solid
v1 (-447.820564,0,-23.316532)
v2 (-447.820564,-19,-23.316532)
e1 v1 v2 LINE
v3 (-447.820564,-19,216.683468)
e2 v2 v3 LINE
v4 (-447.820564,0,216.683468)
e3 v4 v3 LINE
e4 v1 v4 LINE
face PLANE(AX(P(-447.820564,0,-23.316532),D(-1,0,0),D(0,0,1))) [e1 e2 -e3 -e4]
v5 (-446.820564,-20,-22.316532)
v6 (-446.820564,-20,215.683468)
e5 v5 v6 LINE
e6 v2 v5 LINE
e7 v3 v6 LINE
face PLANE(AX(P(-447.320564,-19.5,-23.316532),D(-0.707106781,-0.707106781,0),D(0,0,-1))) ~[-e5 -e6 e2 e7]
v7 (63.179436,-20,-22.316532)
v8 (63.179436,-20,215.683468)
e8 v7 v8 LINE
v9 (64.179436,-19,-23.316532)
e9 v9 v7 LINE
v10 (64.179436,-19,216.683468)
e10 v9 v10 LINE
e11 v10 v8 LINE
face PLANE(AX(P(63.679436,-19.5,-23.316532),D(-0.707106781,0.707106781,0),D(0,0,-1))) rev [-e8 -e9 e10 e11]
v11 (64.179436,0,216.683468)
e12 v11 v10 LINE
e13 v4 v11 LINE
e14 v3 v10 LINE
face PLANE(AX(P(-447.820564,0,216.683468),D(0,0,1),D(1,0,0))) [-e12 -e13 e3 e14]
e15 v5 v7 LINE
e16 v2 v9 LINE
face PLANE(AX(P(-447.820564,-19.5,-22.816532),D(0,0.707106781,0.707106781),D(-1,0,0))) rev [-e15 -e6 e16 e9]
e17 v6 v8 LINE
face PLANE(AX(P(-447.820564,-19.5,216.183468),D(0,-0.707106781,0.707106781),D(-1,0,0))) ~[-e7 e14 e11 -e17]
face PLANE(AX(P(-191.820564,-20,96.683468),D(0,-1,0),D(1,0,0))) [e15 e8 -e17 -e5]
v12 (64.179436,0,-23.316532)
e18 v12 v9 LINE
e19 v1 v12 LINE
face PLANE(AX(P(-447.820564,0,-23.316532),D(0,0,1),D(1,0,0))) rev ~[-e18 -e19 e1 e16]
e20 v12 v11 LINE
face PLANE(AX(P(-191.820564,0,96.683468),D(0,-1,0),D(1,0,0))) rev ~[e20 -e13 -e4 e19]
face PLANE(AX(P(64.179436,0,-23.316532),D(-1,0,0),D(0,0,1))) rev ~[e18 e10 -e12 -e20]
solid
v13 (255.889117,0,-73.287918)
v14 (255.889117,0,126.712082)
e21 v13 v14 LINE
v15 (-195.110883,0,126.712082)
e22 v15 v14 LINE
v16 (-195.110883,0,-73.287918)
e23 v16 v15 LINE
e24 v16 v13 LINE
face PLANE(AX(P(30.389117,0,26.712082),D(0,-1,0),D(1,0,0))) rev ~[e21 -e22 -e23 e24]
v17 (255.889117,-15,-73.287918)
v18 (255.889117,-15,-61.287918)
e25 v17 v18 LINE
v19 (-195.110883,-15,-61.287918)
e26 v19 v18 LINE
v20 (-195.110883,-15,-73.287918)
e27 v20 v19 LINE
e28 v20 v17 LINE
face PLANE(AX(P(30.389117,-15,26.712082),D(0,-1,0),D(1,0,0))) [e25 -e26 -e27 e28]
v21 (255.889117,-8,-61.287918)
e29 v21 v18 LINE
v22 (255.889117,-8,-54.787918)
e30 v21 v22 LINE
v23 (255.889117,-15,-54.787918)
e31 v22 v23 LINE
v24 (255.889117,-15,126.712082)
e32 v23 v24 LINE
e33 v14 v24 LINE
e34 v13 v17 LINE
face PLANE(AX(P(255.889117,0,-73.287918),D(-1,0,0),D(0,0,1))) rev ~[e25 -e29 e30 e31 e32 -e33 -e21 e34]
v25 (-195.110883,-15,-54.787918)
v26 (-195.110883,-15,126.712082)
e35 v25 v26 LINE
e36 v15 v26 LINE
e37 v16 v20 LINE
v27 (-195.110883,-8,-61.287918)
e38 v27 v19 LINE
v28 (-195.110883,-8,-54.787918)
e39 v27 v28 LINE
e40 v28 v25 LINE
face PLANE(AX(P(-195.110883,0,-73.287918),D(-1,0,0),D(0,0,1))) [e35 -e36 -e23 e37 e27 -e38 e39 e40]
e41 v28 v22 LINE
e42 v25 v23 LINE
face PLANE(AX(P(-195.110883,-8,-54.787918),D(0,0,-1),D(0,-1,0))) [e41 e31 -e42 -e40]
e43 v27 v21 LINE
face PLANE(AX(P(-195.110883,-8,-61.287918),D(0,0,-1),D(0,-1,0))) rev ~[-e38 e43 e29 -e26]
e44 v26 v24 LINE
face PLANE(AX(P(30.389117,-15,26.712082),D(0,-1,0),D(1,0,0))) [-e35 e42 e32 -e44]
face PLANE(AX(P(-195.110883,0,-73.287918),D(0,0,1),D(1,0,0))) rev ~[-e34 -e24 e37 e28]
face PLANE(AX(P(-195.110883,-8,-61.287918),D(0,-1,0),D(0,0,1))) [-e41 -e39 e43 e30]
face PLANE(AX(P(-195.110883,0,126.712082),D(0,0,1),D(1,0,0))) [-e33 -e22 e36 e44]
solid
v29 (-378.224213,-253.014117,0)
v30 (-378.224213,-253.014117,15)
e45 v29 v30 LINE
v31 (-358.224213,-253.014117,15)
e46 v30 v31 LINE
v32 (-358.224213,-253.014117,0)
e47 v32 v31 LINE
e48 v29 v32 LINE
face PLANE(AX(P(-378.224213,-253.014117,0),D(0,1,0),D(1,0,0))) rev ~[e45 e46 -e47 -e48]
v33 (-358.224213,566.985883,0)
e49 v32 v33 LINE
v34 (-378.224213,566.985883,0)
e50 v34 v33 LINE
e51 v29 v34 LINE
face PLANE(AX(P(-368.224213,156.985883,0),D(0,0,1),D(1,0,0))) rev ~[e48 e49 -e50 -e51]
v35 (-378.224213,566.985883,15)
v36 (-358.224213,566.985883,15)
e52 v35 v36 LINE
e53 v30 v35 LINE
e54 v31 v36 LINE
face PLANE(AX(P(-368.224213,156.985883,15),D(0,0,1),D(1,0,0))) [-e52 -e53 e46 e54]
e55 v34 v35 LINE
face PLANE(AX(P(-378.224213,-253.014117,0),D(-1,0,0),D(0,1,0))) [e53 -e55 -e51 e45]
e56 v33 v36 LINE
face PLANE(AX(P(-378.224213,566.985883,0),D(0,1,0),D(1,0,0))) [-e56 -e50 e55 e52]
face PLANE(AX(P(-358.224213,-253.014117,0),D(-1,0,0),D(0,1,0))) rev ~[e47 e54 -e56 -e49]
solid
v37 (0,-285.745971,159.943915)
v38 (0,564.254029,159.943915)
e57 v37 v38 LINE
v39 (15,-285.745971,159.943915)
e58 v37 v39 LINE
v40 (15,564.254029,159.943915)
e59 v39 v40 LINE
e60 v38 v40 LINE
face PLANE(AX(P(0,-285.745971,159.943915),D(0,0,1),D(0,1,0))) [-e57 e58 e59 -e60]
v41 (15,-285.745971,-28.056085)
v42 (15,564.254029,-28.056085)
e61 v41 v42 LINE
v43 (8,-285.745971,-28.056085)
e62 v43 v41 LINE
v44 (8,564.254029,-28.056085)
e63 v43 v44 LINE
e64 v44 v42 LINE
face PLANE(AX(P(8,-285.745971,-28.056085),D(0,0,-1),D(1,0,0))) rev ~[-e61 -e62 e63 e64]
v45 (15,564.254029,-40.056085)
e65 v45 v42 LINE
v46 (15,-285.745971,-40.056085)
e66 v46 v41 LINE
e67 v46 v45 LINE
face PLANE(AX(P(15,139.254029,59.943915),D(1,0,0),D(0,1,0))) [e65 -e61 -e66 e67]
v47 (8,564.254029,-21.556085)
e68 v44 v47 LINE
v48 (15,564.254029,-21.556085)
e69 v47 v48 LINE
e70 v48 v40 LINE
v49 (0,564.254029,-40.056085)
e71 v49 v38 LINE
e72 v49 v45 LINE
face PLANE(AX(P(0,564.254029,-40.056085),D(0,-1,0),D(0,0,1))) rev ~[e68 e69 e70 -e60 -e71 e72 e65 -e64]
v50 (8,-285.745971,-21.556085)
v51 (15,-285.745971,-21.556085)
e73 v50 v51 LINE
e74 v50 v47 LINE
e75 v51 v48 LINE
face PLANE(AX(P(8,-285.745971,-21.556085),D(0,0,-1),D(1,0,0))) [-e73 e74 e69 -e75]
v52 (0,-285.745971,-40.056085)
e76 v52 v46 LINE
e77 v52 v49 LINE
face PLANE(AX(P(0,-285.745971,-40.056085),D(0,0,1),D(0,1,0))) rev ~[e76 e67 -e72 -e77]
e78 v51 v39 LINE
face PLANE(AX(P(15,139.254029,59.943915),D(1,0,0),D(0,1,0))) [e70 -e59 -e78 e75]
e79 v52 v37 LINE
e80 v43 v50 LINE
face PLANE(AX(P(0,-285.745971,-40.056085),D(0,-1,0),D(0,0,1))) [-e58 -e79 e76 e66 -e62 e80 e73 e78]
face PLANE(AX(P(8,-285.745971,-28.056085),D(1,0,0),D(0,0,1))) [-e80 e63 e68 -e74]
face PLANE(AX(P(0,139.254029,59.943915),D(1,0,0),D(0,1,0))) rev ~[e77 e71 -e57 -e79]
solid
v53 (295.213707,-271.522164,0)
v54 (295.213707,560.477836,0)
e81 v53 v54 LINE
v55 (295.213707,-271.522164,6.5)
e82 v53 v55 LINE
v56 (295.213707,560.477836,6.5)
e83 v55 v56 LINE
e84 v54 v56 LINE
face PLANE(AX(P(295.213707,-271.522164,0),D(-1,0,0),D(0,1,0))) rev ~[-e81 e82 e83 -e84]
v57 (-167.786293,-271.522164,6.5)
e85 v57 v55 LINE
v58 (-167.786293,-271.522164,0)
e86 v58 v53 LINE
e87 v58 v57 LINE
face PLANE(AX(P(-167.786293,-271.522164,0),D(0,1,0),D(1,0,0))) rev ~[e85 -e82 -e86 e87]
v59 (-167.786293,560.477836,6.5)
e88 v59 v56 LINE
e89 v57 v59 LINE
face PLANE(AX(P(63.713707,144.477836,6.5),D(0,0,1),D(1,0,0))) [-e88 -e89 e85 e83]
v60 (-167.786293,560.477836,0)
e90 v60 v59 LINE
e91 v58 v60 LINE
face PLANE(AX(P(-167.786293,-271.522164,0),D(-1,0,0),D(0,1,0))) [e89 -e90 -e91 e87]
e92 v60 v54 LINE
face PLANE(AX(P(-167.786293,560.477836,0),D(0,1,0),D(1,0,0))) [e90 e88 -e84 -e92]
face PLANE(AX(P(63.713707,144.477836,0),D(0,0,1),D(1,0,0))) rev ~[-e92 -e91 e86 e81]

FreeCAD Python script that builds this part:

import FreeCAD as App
import Part
import Sketcher


def edges_at(feature, points):
    """Names of the edges that pass closest to the given points."""
    edges = feature.Shape.Edges
    near = lambda p: min(range(len(edges)), key=lambda i: edges[i].distToShape(Part.Vertex(*p))[0])
    return sorted({f"Edge{near(p) + 1}" for p in points})

doc = App.newDocument("Part")
body = doc.addObject("PartDesign::Body", "Body")

sketch1 = body.newObject("Sketcher::SketchObject", "Sketch")
sketch1.AttachmentSupport = (doc.getObject("XZ_Plane"), [""])
sketch1.MapMode = "FlatFace"
sketch1.addGeometry([
    Part.LineSegment(App.Vector(-448, 217, 0), App.Vector(-448, -23, 0)),
    Part.LineSegment(App.Vector(-448, -23, 0), App.Vector(64, -23, 0)),
    Part.LineSegment(App.Vector(64, -23, 0), App.Vector(64, 217, 0)),
    Part.LineSegment(App.Vector(64, 217, 0), App.Vector(-448, 217, 0)),
], False)
sketch1.addConstraint([
    Sketcher.Constraint("Coincident", 0, 2, 1, 1),
    Sketcher.Constraint("Coincident", 1, 2, 2, 1),
    Sketcher.Constraint("Coincident", 2, 2, 3, 1),
    Sketcher.Constraint("Coincident", 3, 2, 0, 1),
    Sketcher.Constraint("Vertical", 0),
    Sketcher.Constraint("Horizontal", 1),
    Sketcher.Constraint("Vertical", 2),
    Sketcher.Constraint("Horizontal", 3),
    Sketcher.Constraint("DistanceX", 1, 1, 1, 2, 512.0),
    Sketcher.Constraint("DistanceY", 0, 2, 0, 1, 240.0),
    Sketcher.Constraint("DistanceX", 0, 2, -1, 1, 447.820564),
    Sketcher.Constraint("DistanceY", 0, 2, -1, 1, 23.316532),
])
pad1 = body.newObject("PartDesign::Pad", "Pad")
pad1.Profile = sketch1
pad1.Length = 20
doc.recompute()

chamfer = body.newObject("PartDesign::Chamfer", "Chamfer")
chamfer.Base = (pad1, edges_at(pad1, [
    (-191.821, -20, -23.317),
    (64.179, -20, 96.683),
    (-191.821, -20, 216.683),
    (-447.821, -20, 96.683),
]))
chamfer.Size = 1
body2 = doc.addObject("PartDesign::Body", "Body001")

sketch2 = body2.newObject("Sketcher::SketchObject", "Sketch001")
sketch2.AttachmentSupport = (doc.getObject("YZ_Plane001"), [""])
sketch2.MapMode = "FlatFace"
sketch2.addGeometry([
    Part.LineSegment(App.Vector(-286, 160, 0), App.Vector(-286, -40, 0)),
    Part.LineSegment(App.Vector(-286, -40, 0), App.Vector(564, -40, 0)),
    Part.LineSegment(App.Vector(564, -40, 0), App.Vector(564, 160, 0)),
    Part.LineSegment(App.Vector(564, 160, 0), App.Vector(-286, 160, 0)),
], False)
sketch2.addConstraint([
    Sketcher.Constraint("Coincident", 0, 2, 1, 1),
    Sketcher.Constraint("Coincident", 1, 2, 2, 1),
    Sketcher.Constraint("Coincident", 2, 2, 3, 1),
    Sketcher.Constraint("Coincident", 3, 2, 0, 1),
    Sketcher.Constraint("Vertical", 0),
    Sketcher.Constraint("Horizontal", 1),
    Sketcher.Constraint("Vertical", 2),
    Sketcher.Constraint("Horizontal", 3),
    Sketcher.Constraint("DistanceX", 1, 1, 1, 2, 850.0),
    Sketcher.Constraint("DistanceY", 0, 2, 0, 1, 200.0),
    Sketcher.Constraint("DistanceX", 0, 2, -1, 1, 285.745971),
    Sketcher.Constraint("DistanceY", 0, 2, -1, 1, 40.056085),
])
pad2 = body2.newObject("PartDesign::Pad", "Pad001")
pad2.Profile = sketch2
pad2.Length = 15

sketch3 = body2.newObject("Sketcher::SketchObject", "Sketch002")
sketch3.AttachmentSupport = (doc.getObject("XZ_Plane001"), [""])
sketch3.MapMode = "FlatFace"
sketch3.AttachmentOffset = App.Placement(App.Vector(0, 0, 285.745971), App.Rotation())
sketch3.addGeometry([
    Part.LineSegment(App.Vector(8, -22, 0), App.Vector(8, -28, 0)),
    Part.LineSegment(App.Vector(8, -28, 0), App.Vector(23, -28, 0)),
    Part.LineSegment(App.Vector(23, -28, 0), App.Vector(23, -22, 0)),
    Part.LineSegment(App.Vector(23, -22, 0), App.Vector(8, -22, 0)),
], False)
sketch3.addConstraint([
    Sketcher.Constraint("Coincident", 0, 2, 1, 1),
    Sketcher.Constraint("Coincident", 1, 2, 2, 1),
    Sketcher.Constraint("Coincident", 2, 2, 3, 1),
    Sketcher.Constraint("Coincident", 3, 2, 0, 1),
    Sketcher.Constraint("Vertical", 0),
    Sketcher.Constraint("Horizontal", 1),
    Sketcher.Constraint("Vertical", 2),
    Sketcher.Constraint("Horizontal", 3),
    Sketcher.Constraint("DistanceX", 1, 1, 1, 2, 15.0),
    Sketcher.Constraint("DistanceY", 0, 2, 0, 1, 6.5),
    Sketcher.Constraint("DistanceX", -1, 1, 0, 2, 8.0),
    Sketcher.Constraint("DistanceY", 0, 2, -1, 1, 28.056085),
])
pocket1 = body2.newObject("PartDesign::Pocket", "Pocket")
pocket1.Profile = sketch3
pocket1.Length = 1000
body3 = doc.addObject("PartDesign::Body", "Body002")

sketch4 = body3.newObject("Sketcher::SketchObject", "Sketch003")
sketch4.AttachmentSupport = (doc.getObject("XZ_Plane002"), [""])
sketch4.MapMode = "FlatFace"
sketch4.addGeometry([
    Part.LineSegment(App.Vector(-195, 127, 0), App.Vector(-195, -73, 0)),
    Part.LineSegment(App.Vector(-195, -73, 0), App.Vector(256, -73, 0)),
    Part.LineSegment(App.Vector(256, -73, 0), App.Vector(256, 127, 0)),
    Part.LineSegment(App.Vector(256, 127, 0), App.Vector(-195, 127, 0)),
], False)
sketch4.addConstraint([
    Sketcher.Constraint("Coincident", 0, 2, 1, 1),
    Sketcher.Constraint("Coincident", 1, 2, 2, 1),
    Sketcher.Constraint("Coincident", 2, 2, 3, 1),
    Sketcher.Constraint("Coincident", 3, 2, 0, 1),
    Sketcher.Constraint("Vertical", 0),
    Sketcher.Constraint("Horizontal", 1),
    Sketcher.Constraint("Vertical", 2),
    Sketcher.Constraint("Horizontal", 3),
    Sketcher.Constraint("DistanceX", 1, 1, 1, 2, 451.0),
    Sketcher.Constraint("DistanceY", 0, 2, 0, 1, 200.0),
    Sketcher.Constraint("DistanceY", 0, 2, -1, 1, 73.287918),
    Sketcher.Constraint("DistanceX", 0, 2, -1, 1, 195.110883),
])
pad3 = body3.newObject("PartDesign::Pad", "Pad002")
pad3.Profile = sketch4
pad3.Length = 15

sketch5 = body3.newObject("Sketcher::SketchObject", "Sketch004")
sketch5.AttachmentSupport = (doc.getObject("YZ_Plane002"), [""])
sketch5.MapMode = "FlatFace"
sketch5.AttachmentOffset = App.Placement(App.Vector(0, 0, -195.110883), App.Rotation())
sketch5.addGeometry([
    Part.LineSegment(App.Vector(-8, -55, 0), App.Vector(-8, -61, 0)),
    Part.LineSegment(App.Vector(-8, -61, 0), App.Vector(-25, -61, 0)),
    Part.LineSegment(App.Vector(-25, -61, 0), App.Vector(-25, -55, 0)),
    Part.LineSegment(App.Vector(-25, -55, 0), App.Vector(-8, -55, 0)),
], False)
sketch5.addConstraint([
    Sketcher.Constraint("Coincident", 0, 2, 1, 1),
    Sketcher.Constraint("Coincident", 1, 2, 2, 1),
    Sketcher.Constraint("Coincident", 2, 2, 3, 1),
    Sketcher.Constraint("Coincident", 3, 2, 0, 1),
    Sketcher.Constraint("Vertical", 0),
    Sketcher.Constraint("Horizontal", 1),
    Sketcher.Constraint("Vertical", 2),
    Sketcher.Constraint("Horizontal", 3),
    Sketcher.Constraint("DistanceY", 0, 2, 0, 1, 6.5),
    Sketcher.Constraint("DistanceX", 0, 2, -1, 1, 8.0),
    Sketcher.Constraint("DistanceX", 1, 2, 1, 1, 17.301174),
    Sketcher.Constraint("DistanceY", 0, 2, -1, 1, 61.287918),
])
pocket2 = body3.newObject("PartDesign::Pocket", "Pocket001")
pocket2.Profile = sketch5
pocket2.Length = 1000
pocket2.Reversed = True
body4 = doc.addObject("PartDesign::Body", "Body003")

sketch6 = body4.newObject("Sketcher::SketchObject", "Sketch005")
sketch6.AttachmentSupport = (doc.getObject("XY_Plane003"), [""])
sketch6.MapMode = "FlatFace"
sketch6.addGeometry([
    Part.LineSegment(App.Vector(-168, 560, 0), App.Vector(-168, -272, 0)),
    Part.LineSegment(App.Vector(-168, -272, 0), App.Vector(295, -272, 0)),
    Part.LineSegment(App.Vector(295, -272, 0), App.Vector(295, 560, 0)),
    Part.LineSegment(App.Vector(295, 560, 0), App.Vector(-168, 560, 0)),
], False)
sketch6.addConstraint([
    Sketcher.Constraint("Coincident", 0, 2, 1, 1),
    Sketcher.Constraint("Coincident", 1, 2, 2, 1),
    Sketcher.Constraint("Coincident", 2, 2, 3, 1),
    Sketcher.Constraint("Coincident", 3, 2, 0, 1),
    Sketcher.Constraint("Vertical", 0),
    Sketcher.Constraint("Horizontal", 1),
    Sketcher.Constraint("Vertical", 2),
    Sketcher.Constraint("Horizontal", 3),
    Sketcher.Constraint("DistanceX", 1, 1, 1, 2, 463.0),
    Sketcher.Constraint("DistanceY", 0, 2, 0, 1, 832.0),
    Sketcher.Constraint("DistanceX", 0, 2, -1, 1, 167.786293),
    Sketcher.Constraint("DistanceY", 0, 2, -1, 1, 271.522164),
])
pad4 = body4.newObject("PartDesign::Pad", "Pad003")
pad4.Profile = sketch6
pad4.Length = 6.5
body5 = doc.addObject("PartDesign::Body", "Body004")

sketch7 = body5.newObject("Sketcher::SketchObject", "Sketch006")
sketch7.AttachmentSupport = (doc.getObject("XY_Plane004"), [""])
sketch7.MapMode = "FlatFace"
sketch7.addGeometry([
    Part.LineSegment(App.Vector(-378, 567, 0), App.Vector(-378, -253, 0)),
    Part.LineSegment(App.Vector(-378, -253, 0), App.Vector(-358, -253, 0)),
    Part.LineSegment(App.Vector(-358, -253, 0), App.Vector(-358, 567, 0)),
    Part.LineSegment(App.Vector(-358, 567, 0), App.Vector(-378, 567, 0)),
], False)
sketch7.addConstraint([
    Sketcher.Constraint("Coincident", 0, 2, 1, 1),
    Sketcher.Constraint("Coincident", 1, 2, 2, 1),
    Sketcher.Constraint("Coincident", 2, 2, 3, 1),
    Sketcher.Constraint("Coincident", 3, 2, 0, 1),
    Sketcher.Constraint("Vertical", 0),
    Sketcher.Constraint("Horizontal", 1),
    Sketcher.Constraint("Vertical", 2),
    Sketcher.Constraint("Horizontal", 3),
    Sketcher.Constraint("DistanceX", 1, 1, 1, 2, 20.0),
    Sketcher.Constraint("DistanceY", 0, 2, 0, 1, 820.0),
    Sketcher.Constraint("DistanceX", 0, 2, -1, 1, 378.224213),
    Sketcher.Constraint("DistanceY", 0, 2, -1, 1, 253.014117),
])
pad5 = body5.newObject("PartDesign::Pad", "Pad004")
pad5.Profile = sketch7
pad5.Length = 15

doc.recompute()
